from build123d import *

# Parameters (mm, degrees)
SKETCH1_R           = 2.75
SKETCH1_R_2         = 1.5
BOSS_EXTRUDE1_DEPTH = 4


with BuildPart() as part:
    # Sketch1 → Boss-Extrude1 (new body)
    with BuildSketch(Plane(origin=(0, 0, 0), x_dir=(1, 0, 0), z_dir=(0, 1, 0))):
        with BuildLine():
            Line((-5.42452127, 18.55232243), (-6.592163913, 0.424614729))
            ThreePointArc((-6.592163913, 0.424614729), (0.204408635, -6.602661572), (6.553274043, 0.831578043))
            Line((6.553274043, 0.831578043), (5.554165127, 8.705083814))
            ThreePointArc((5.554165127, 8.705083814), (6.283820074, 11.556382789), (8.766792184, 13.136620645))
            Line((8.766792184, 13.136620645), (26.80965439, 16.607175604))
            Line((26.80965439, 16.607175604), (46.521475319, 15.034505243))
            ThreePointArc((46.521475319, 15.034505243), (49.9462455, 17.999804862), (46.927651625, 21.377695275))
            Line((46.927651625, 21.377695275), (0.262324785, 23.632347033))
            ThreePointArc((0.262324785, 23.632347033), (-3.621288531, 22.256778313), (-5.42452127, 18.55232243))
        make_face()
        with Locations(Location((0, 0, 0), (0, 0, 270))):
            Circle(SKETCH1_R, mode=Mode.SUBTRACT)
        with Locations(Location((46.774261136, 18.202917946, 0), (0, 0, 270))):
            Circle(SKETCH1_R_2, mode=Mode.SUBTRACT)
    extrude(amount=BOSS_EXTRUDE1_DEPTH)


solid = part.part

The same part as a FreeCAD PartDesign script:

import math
import FreeCAD as App
import Part
import Sketcher
from FreeCAD import Vector

doc = App.newDocument("Part")
params = doc.addObject("Spreadsheet::Sheet", "Params")
for row, (alias, value) in enumerate([
    ("sketch1_diameter", "3 mm"),
    ("sketch1_radius", "4 mm"),
    ("sketch1_diameter2", "5.5 mm"),
    ("pad1_length", "4 mm"),
], start=1):
    params.set(f"A{row}", alias)
    params.set(f"B{row}", "=" + value)
    params.setAlias(f"B{row}", alias)

body = doc.addObject("PartDesign::Body", "Body")

# Sketch on XZ plane
sketch1 = body.newObject("Sketcher::SketchObject", "Sketch")
sketch1.AttachmentSupport = (doc.getObject("XZ_Plane"), [""])
sketch1.MapMode = "FlatFace"
sketch1.addGeometry([
    Part.LineSegment(Vector(-5.4, -18.6, 0), Vector(-6.6, -0.4, 0)),  # 0
    Part.ArcOfCircle(Part.Circle(Vector(0, 0, 0), Vector(0, 0, 1), 6.6), math.radians(-7), math.radians(184)),  # 1
    Part.LineSegment(Vector(6.6, -0.8, 0), Vector(5.6, -8.7, 0)),  # 2
    Part.ArcOfCircle(Part.Circle(Vector(9.5, -9.2, 0), Vector(0, 0, 1), 4), math.radians(173), math.radians(259)),  # 3
    Part.LineSegment(Vector(8.8, -13.1, 0), Vector(26.8, -16.6, 0)),  # 4
    Part.LineSegment(Vector(26.8, -16.6, 0), Vector(46.5, -15, 0)),  # 5
    Part.ArcOfCircle(Part.Circle(Vector(46.8, -18.2, 0), Vector(0, 0, 1), 3.2), math.radians(-87), math.radians(95)),  # 6
    Part.LineSegment(Vector(46.9, -21.4, 0), Vector(0.3, -23.6, 0)),  # 7
    Part.ArcOfCircle(Part.Circle(Vector(0, -18.2, 0), Vector(0, 0, 1), 5.4), math.radians(-176), math.radians(-87)),  # 8
    Part.Circle(Vector(0, 0, 0), Vector(0, 0, 1), 2.8),  # 9
    Part.Circle(Vector(46.8, -18.2, 0), Vector(0, 0, 1), 1.5),  # 10
], False)
sketch1.addConstraint([
    Sketcher.Constraint("Tangent", 0, 2, 1, 2),
    Sketcher.Constraint("Tangent", 1, 1, 2, 1),
    Sketcher.Constraint("Tangent", 2, 2, 3, 1),
    Sketcher.Constraint("Tangent", 3, 2, 4, 1),
    Sketcher.Constraint("Coincident", 4, 2, 5, 1),
    Sketcher.Constraint("Tangent", 5, 2, 6, 2),
    Sketcher.Constraint("Tangent", 6, 1, 7, 1),
    Sketcher.Constraint("Tangent", 7, 2, 8, 2),
    Sketcher.Constraint("Tangent", 8, 1, 0, 1),
    Sketcher.Constraint("Coincident", 1, 3, -1, 1),
    Sketcher.Constraint("Coincident", 9, 3, -1, 1),
    Sketcher.Constraint("Coincident", 10, 3, 6, 3),
    Sketcher.Constraint("PointOnObject", 8, 3, -2),
    Sketcher.Constraint("Horizontal", 6, 3, 8, 3),
    Sketcher.Constraint("Diameter", 10, 3.0),
    Sketcher.Constraint("Radius", 3, 4.0),
    Sketcher.Constraint("Diameter", 9, 5.5),
    Sketcher.Constraint("Radius", 6, 3.178481),
    Sketcher.Constraint("Radius", 1, 6.605825),
    Sketcher.Constraint("Radius", 8, 5.435763),
    Sketcher.Constraint("DistanceY", 8, 1, 3, 2, 5.415702),
    Sketcher.Constraint("DistanceX", -1, 1, 6, 3, 46.774261),
    Sketcher.Constraint("DistanceY", 1, 1, -1, 1, 0.831578),
    Sketcher.Constraint("DistanceY", 3, 2, -1, 1, 13.136621),
    Sketcher.Constraint("DistanceY", 6, 3, 3, 3, 8.994292),
    Sketcher.Constraint("DistanceX", 3, 3, 4, 2, 17.28731),
])
sketch1.setExpression("Constraints[14]", "Params.sketch1_diameter")
sketch1.setExpression("Constraints[15]", "Params.sketch1_radius")
sketch1.setExpression("Constraints[16]", "Params.sketch1_diameter2")
pad1 = body.newObject("PartDesign::Pad", "Pad")
pad1.Profile = sketch1
pad1.setExpression("Length", "Params.pad1_length")
pad1.Reversed = True

doc.recompute()
